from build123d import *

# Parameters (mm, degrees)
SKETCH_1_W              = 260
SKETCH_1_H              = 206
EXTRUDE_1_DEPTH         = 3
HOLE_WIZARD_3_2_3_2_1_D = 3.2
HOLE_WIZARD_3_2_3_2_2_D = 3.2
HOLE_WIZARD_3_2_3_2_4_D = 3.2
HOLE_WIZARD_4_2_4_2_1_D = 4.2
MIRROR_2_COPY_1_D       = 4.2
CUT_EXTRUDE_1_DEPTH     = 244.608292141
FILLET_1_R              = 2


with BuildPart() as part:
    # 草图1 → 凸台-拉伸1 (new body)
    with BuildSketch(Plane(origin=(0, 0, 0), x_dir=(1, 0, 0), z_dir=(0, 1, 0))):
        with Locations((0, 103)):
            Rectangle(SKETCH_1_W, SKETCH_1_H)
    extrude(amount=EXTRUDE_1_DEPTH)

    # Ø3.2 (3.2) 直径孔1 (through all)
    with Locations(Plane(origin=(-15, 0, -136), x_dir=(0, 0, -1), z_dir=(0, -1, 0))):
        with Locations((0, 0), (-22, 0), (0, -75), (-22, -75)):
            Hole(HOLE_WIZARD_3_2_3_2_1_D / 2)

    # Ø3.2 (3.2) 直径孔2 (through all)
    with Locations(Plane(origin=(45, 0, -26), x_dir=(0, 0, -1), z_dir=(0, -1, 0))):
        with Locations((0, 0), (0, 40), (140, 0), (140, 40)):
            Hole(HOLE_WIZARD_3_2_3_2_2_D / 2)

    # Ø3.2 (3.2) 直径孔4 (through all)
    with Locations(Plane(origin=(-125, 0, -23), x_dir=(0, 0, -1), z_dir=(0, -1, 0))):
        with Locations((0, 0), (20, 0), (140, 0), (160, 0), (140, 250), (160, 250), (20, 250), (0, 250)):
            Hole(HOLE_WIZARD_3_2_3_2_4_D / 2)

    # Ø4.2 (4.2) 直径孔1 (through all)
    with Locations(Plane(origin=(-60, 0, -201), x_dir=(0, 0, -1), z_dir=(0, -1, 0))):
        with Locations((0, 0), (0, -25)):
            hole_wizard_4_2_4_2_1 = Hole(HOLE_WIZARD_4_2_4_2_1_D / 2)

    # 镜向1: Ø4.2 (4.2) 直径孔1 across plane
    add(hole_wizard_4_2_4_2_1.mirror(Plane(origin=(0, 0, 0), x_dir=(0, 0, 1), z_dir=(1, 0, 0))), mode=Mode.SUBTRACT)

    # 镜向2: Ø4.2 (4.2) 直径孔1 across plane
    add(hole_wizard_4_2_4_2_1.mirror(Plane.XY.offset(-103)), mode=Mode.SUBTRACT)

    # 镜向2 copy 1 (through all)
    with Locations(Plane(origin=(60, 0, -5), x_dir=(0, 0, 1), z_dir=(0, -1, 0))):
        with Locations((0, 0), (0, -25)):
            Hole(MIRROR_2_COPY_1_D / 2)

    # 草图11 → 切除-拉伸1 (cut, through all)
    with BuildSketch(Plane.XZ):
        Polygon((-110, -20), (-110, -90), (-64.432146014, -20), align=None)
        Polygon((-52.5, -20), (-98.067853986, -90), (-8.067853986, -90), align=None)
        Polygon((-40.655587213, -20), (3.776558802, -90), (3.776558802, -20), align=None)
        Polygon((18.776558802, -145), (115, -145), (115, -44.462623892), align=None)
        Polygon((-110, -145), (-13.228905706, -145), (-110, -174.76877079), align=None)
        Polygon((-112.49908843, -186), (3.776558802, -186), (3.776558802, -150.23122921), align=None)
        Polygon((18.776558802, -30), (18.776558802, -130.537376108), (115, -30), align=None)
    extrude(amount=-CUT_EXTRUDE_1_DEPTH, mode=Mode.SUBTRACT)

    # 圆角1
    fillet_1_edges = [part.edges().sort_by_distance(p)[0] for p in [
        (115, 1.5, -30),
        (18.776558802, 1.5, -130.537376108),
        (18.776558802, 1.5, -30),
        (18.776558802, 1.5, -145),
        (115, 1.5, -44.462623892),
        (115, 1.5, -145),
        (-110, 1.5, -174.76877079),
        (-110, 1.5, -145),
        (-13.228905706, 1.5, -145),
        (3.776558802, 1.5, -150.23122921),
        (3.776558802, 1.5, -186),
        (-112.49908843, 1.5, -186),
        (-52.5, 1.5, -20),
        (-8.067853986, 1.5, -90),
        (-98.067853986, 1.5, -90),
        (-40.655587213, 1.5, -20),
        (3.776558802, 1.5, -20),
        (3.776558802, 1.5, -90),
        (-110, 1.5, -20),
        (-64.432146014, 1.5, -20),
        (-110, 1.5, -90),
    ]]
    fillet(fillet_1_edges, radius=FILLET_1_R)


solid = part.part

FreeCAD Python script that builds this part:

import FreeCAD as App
import Part
import Sketcher
from FreeCAD import Vector


def edges_at(feature, points):
    """Names of the edges that pass closest to the given points."""
    edges = feature.Shape.Edges
    near = lambda p: min(range(len(edges)), key=lambda i: edges[i].distToShape(Part.Vertex(*p))[0])
    return sorted({f"Edge{near(p) + 1}" for p in points})


def add_polygon(sketch, points):
    """Adds a closed chain of lines whose ends are joined by coincident constraints."""
    first, n = sketch.GeometryCount, len(points)
    for a, b in zip(points, points[1:] + points[:1]):
        sketch.addGeometry(Part.LineSegment(App.Vector(*a, 0), App.Vector(*b, 0)), False)
    for i in range(n):
        sketch.addConstraint(Sketcher.Constraint("Coincident", first + i, 2, first + (i + 1) % n, 1))

doc = App.newDocument("Part")
body = doc.addObject("PartDesign::Body", "Body")

sketch1 = body.newObject("Sketcher::SketchObject", "Sketch")
sketch1.AttachmentSupport = (doc.getObject("XZ_Plane"), [""])
sketch1.MapMode = "FlatFace"
add_polygon(sketch1, [(-130, -206), (-130, 0), (130, 0), (130, -206)])
sketch1.addConstraint([
    Sketcher.Constraint("Vertical", 0),
    Sketcher.Constraint("Horizontal", 1),
    Sketcher.Constraint("Vertical", 2),
    Sketcher.Constraint("Horizontal", 3),
    Sketcher.Constraint("Symmetric", 0, 2, 1, 2, -1, 1),
    Sketcher.Constraint("DistanceX", 1, 1, 1, 2, 260.0),
    Sketcher.Constraint("DistanceY", 0, 1, 0, 2, 206.0),
])
pad1 = body.newObject("PartDesign::Pad", "Pad")
pad1.Profile = sketch1
pad1.Length = 3
pad1.Reversed = True

sketch2 = body.newObject("Sketcher::SketchObject", "Sketch001")
sketch2.AttachmentSupport = (doc.getObject("XZ_Plane"), [""])
sketch2.MapMode = "FlatFace"
sketch2.addGeometry([
    Part.Circle(Vector(-15, -136, 0), Vector(0, 0, 1), 1.6),
    Part.Circle(Vector(-15, -114, 0), Vector(0, 0, 1), 1.6),
    Part.Circle(Vector(-90, -136, 0), Vector(0, 0, 1), 1.6),
    Part.Circle(Vector(-90, -114, 0), Vector(0, 0, 1), 1.6),
], False)
sketch2.addConstraint([
    Sketcher.Constraint("Equal", 0, 1),
    Sketcher.Constraint("Equal", 1, 2),
    Sketcher.Constraint("Equal", 2, 3),
    Sketcher.Constraint("Horizontal", 0, 3, 2, 3),
    Sketcher.Constraint("Horizontal", 1, 3, 3, 3),
    Sketcher.Constraint("Vertical", 0, 3, 1, 3),
    Sketcher.Constraint("Vertical", 2, 3, 3, 3),
    Sketcher.Constraint("Diameter", 0, 3.2),
    Sketcher.Constraint("DistanceX", 0, 3, -1, 1, 15.0),
    Sketcher.Constraint("DistanceY", 0, 3, -1, 1, 136.0),
    Sketcher.Constraint("DistanceY", 1, 3, -1, 1, 114.0),
    Sketcher.Constraint("DistanceX", 2, 3, -1, 1, 90.0),
])
doc.recompute()
hole = body.newObject("PartDesign::Hole", "Hole")
hole.Profile = sketch2
hole.ThreadType = "None"
hole.Diameter = 3.2
hole.DepthType = "ThroughAll"

sketch3 = body.newObject("Sketcher::SketchObject", "Sketch002")
sketch3.AttachmentSupport = (doc.getObject("XZ_Plane"), [""])
sketch3.MapMode = "FlatFace"
sketch3.addGeometry([
    Part.Circle(Vector(45, -26, 0), Vector(0, 0, 1), 1.6),
    Part.Circle(Vector(85, -26, 0), Vector(0, 0, 1), 1.6),
    Part.Circle(Vector(45, -166, 0), Vector(0, 0, 1), 1.6),
    Part.Circle(Vector(85, -166, 0), Vector(0, 0, 1), 1.6),
], False)
sketch3.addConstraint([
    Sketcher.Constraint("Equal", 0, 1),
    Sketcher.Constraint("Equal", 1, 2),
    Sketcher.Constraint("Equal", 2, 3),
    Sketcher.Constraint("Horizontal", 0, 3, 1, 3),
    Sketcher.Constraint("Horizontal", 2, 3, 3, 3),
    Sketcher.Constraint("Vertical", 0, 3, 2, 3),
    Sketcher.Constraint("Vertical", 1, 3, 3, 3),
    Sketcher.Constraint("Diameter", 0, 3.2),
    Sketcher.Constraint("DistanceX", -1, 1, 0, 3, 45.0),
    Sketcher.Constraint("DistanceY", 0, 3, -1, 1, 26.0),
    Sketcher.Constraint("DistanceX", -1, 1, 1, 3, 85.0),
    Sketcher.Constraint("DistanceY", 2, 3, -1, 1, 166.0),
])
doc.recompute()
hole2 = body.newObject("PartDesign::Hole", "Hole001")
hole2.Profile = sketch3
hole2.ThreadType = "None"
hole2.Diameter = 3.2
hole2.DepthType = "ThroughAll"

sketch4 = body.newObject("Sketcher::SketchObject", "Sketch003")
sketch4.AttachmentSupport = (doc.getObject("XZ_Plane"), [""])
sketch4.MapMode = "FlatFace"
sketch4.addGeometry([
    Part.Circle(Vector(-125, -23, 0), Vector(0, 0, 1), 1.6),
    Part.Circle(Vector(-125, -43, 0), Vector(0, 0, 1), 1.6),
    Part.Circle(Vector(-125, -163, 0), Vector(0, 0, 1), 1.6),
    Part.Circle(Vector(-125, -183, 0), Vector(0, 0, 1), 1.6),
    Part.Circle(Vector(125, -163, 0), Vector(0, 0, 1), 1.6),
    Part.Circle(Vector(125, -183, 0), Vector(0, 0, 1), 1.6),
    Part.Circle(Vector(125, -43, 0), Vector(0, 0, 1), 1.6),
    Part.Circle(Vector(125, -23, 0), Vector(0, 0, 1), 1.6),
], False)
sketch4.addConstraint([
    Sketcher.Constraint("Equal", 0, 1),
    Sketcher.Constraint("Equal", 1, 2),
    Sketcher.Constraint("Equal", 2, 3),
    Sketcher.Constraint("Equal", 3, 4),
    Sketcher.Constraint("Equal", 4, 5),
    Sketcher.Constraint("Equal", 5, 6),
    Sketcher.Constraint("Equal", 6, 7),
    Sketcher.Constraint("Symmetric", 2, 3, 4, 3, -2),
    Sketcher.Constraint("Symmetric", 3, 3, 5, 3, -2),
    Sketcher.Constraint("Symmetric", 1, 3, 6, 3, -2),
    Sketcher.Constraint("Symmetric", 0, 3, 7, 3, -2),
    Sketcher.Constraint("Vertical", 0, 3, 1, 3),
    Sketcher.Constraint("Vertical", 1, 3, 2, 3),
    Sketcher.Constraint("Vertical", 2, 3, 3, 3),
    Sketcher.Constraint("Diameter", 0, 3.2),
    Sketcher.Constraint("DistanceX", 0, 3, -1, 1, 125.0),
    Sketcher.Constraint("DistanceY", 0, 3, -1, 1, 23.0),
    Sketcher.Constraint("DistanceY", 1, 3, -1, 1, 43.0),
    Sketcher.Constraint("DistanceY", 2, 3, -1, 1, 163.0),
    Sketcher.Constraint("DistanceY", 3, 3, -1, 1, 183.0),
])
doc.recompute()
hole3 = body.newObject("PartDesign::Hole", "Hole002")
hole3.Profile = sketch4
hole3.ThreadType = "None"
hole3.Diameter = 3.2
hole3.DepthType = "ThroughAll"

sketch5 = body.newObject("Sketcher::SketchObject", "Sketch004")
sketch5.AttachmentSupport = (doc.getObject("XZ_Plane"), [""])
sketch5.MapMode = "FlatFace"
sketch5.addGeometry([
    Part.Circle(Vector(-60, -201, 0), Vector(0, 0, 1), 2.1),
    Part.Circle(Vector(-85, -201, 0), Vector(0, 0, 1), 2.1),
], False)
sketch5.addConstraint([
    Sketcher.Constraint("Equal", 0, 1),
    Sketcher.Constraint("Horizontal", 0, 3, 1, 3),
    Sketcher.Constraint("Diameter", 0, 4.2),
    Sketcher.Constraint("DistanceX", 0, 3, -1, 1, 60.0),
    Sketcher.Constraint("DistanceY", 0, 3, -1, 1, 201.0),
    Sketcher.Constraint("DistanceX", 1, 3, -1, 1, 85.0),
])
doc.recompute()
hole4 = body.newObject("PartDesign::Hole", "Hole003")
hole4.Profile = sketch5
hole4.ThreadType = "None"
hole4.Diameter = 4.2
hole4.DepthType = "ThroughAll"
doc.recompute()

mirrored = body.newObject("PartDesign::Mirrored", "Mirrored")
mirrored.Originals = [hole4]
mirrored.MirrorPlane = (doc.getObject("YZ_Plane"), [""])
body.Tip = mirrored
doc.recompute()

datumplane = body.newObject("PartDesign::Plane", "DatumPlane")
datumplane.AttachmentSupport = (doc.getObject("XY_Plane"), [""])
datumplane.MapMode = "FlatFace"
datumplane.AttachmentOffset = App.Placement(Vector(0, 0, -103), App.Rotation())
mirrored2 = body.newObject("PartDesign::Mirrored", "Mirrored001")
mirrored2.Originals = [hole4]
mirrored2.MirrorPlane = (datumplane, [""])
body.Tip = mirrored2

sketch6 = body.newObject("Sketcher::SketchObject", "Sketch005")
sketch6.AttachmentSupport = (doc.getObject("XZ_Plane"), [""])
sketch6.MapMode = "FlatFace"
sketch6.addGeometry([
    Part.Circle(Vector(60, -5, 0), Vector(0, 0, 1), 2.1),
    Part.Circle(Vector(85, -5, 0), Vector(0, 0, 1), 2.1),
], False)
sketch6.addConstraint([
    Sketcher.Constraint("Equal", 0, 1),
    Sketcher.Constraint("Horizontal", 0, 3, 1, 3),
    Sketcher.Constraint("Diameter", 0, 4.2),
    Sketcher.Constraint("DistanceX", -1, 1, 0, 3, 60.0),
    Sketcher.Constraint("DistanceY", 0, 3, -1, 1, 5.0),
    Sketcher.Constraint("DistanceX", -1, 1, 1, 3, 85.0),
])
doc.recompute()
hole5 = body.newObject("PartDesign::Hole", "Hole004")
hole5.Profile = sketch6
hole5.ThreadType = "None"
hole5.Diameter = 4.2
hole5.DepthType = "ThroughAll"

sketch7 = body.newObject("Sketcher::SketchObject", "Sketch006")
sketch7.AttachmentSupport = (doc.getObject("XZ_Plane"), [""])
sketch7.MapMode = "FlatFace"
add_polygon(sketch7, [(-110, -20), (-110, -90), (-64, -20)])
add_polygon(sketch7, [(-52, -20), (-98, -90), (-8, -90)])
add_polygon(sketch7, [(-41, -20), (4, -90), (4, -20)])
add_polygon(sketch7, [(19, -145), (115, -145), (115, -44)])
add_polygon(sketch7, [(-13, -145), (-110, -145), (-110, -175)])
add_polygon(sketch7, [(-112, -186), (4, -186), (4, -150)])
add_polygon(sketch7, [(19, -30), (19, -131), (115, -30)])
sketch7.addConstraint([
    Sketcher.Constraint("Vertical", 0),
    Sketcher.Constraint("Horizontal", 2),
    Sketcher.Constraint("Horizontal", 4),
    Sketcher.Constraint("Vertical", 7),
    Sketcher.Constraint("Horizontal", 8),
    Sketcher.Constraint("Horizontal", 9),
    Sketcher.Constraint("Vertical", 10),
    Sketcher.Constraint("Horizontal", 12),
    Sketcher.Constraint("Vertical", 13),
    Sketcher.Constraint("Horizontal", 15),
    Sketcher.Constraint("Vertical", 16),
    Sketcher.Constraint("Vertical", 18),
    Sketcher.Constraint("Horizontal", 20),
    Sketcher.Constraint("Parallel", 1, 3),
    Sketcher.Constraint("Parallel", 5, 6),
    Sketcher.Constraint("Parallel", 14, 17),
    Sketcher.Constraint("Parallel", 11, 19),
    Sketcher.Constraint("Horizontal", 0, 2, 3, 2),
    Sketcher.Constraint("Horizontal", 2, 2, 5, 2),
    Sketcher.Constraint("Horizontal", 4, 2, 6, 2),
    Sketcher.Constraint("Horizontal", 5, 2, 7, 2),
    Sketcher.Constraint("Horizontal", 11, 2, 12, 2),
    Sketcher.Constraint("Vertical", 2, 2, 12, 2),
    Sketcher.Constraint("Vertical", 7, 2, 15, 2),
    Sketcher.Constraint("Vertical", 11, 2, 18, 2),
    Sketcher.Constraint("Vertical", 10, 2, 19, 2),
    Sketcher.Constraint("DistanceX", 4, 1, 4, 2, 90.0),
    Sketcher.Constraint("DistanceY", 0, 2, 0, 1, 70.0),
    Sketcher.Constraint("DistanceX", 0, 2, -1, 1, 110.0),
    Sketcher.Constraint("DistanceY", 0, 2, -1, 1, 90.0),
    Sketcher.Constraint("DistanceX", -1, 1, 9, 2, 115.0),
    Sketcher.Constraint("DistanceY", 9, 2, -1, 1, 145.0),
    Sketcher.Constraint("DistanceY", 15, 2, -1, 1, 186.0),
    Sketcher.Constraint("DistanceY", 19, 2, -1, 1, 30.0),
    Sketcher.Constraint("DistanceX", 6, 2, 11, 2, 15.0),
    Sketcher.Constraint("DistanceX", 5, 2, -1, 1, 52.5),
    Sketcher.Constraint("DistanceX", 9, 1, 9, 2, 96.223441),
    Sketcher.Constraint("DistanceY", 13, 2, 13, 1, 29.768771),
    Sketcher.Constraint("DistanceY", 16, 1, 16, 2, 35.768771),
    Sketcher.Constraint("Distance", 5, 82.91089),
    Sketcher.Constraint("DistanceX", 12, 2, 12, 1, 96.771094),
    Sketcher.Constraint("DistanceY", 10, 1, 10, 2, 100.537376),
])
pocket1 = body.newObject("PartDesign::Pocket", "Pocket")
pocket1.Profile = sketch7
pocket1.Type = "ThroughAll"
doc.recompute()

fillet = body.newObject("PartDesign::Fillet", "Fillet")
fillet.Base = (pocket1, edges_at(pocket1, [
    (115, 1.5, -30),
    (18.777, 1.5, -130.537),
    (18.777, 1.5, -30),
    (18.777, 1.5, -145),
    (115, 1.5, -44.463),
    (115, 1.5, -145),
    (-110, 1.5, -174.769),
    (-110, 1.5, -145),
    (-13.229, 1.5, -145),
    (3.777, 1.5, -150.231),
    (3.777, 1.5, -186),
    (-112.499, 1.5, -186),
    (-52.5, 1.5, -20),
    (-8.068, 1.5, -90),
    (-98.068, 1.5, -90),
    (-40.656, 1.5, -20),
    (3.777, 1.5, -20),
    (3.777, 1.5, -90),
    (-110, 1.5, -20),
    (-64.432, 1.5, -20),
    (-110, 1.5, -90),
]))
fillet.Radius = 2

doc.recompute()
